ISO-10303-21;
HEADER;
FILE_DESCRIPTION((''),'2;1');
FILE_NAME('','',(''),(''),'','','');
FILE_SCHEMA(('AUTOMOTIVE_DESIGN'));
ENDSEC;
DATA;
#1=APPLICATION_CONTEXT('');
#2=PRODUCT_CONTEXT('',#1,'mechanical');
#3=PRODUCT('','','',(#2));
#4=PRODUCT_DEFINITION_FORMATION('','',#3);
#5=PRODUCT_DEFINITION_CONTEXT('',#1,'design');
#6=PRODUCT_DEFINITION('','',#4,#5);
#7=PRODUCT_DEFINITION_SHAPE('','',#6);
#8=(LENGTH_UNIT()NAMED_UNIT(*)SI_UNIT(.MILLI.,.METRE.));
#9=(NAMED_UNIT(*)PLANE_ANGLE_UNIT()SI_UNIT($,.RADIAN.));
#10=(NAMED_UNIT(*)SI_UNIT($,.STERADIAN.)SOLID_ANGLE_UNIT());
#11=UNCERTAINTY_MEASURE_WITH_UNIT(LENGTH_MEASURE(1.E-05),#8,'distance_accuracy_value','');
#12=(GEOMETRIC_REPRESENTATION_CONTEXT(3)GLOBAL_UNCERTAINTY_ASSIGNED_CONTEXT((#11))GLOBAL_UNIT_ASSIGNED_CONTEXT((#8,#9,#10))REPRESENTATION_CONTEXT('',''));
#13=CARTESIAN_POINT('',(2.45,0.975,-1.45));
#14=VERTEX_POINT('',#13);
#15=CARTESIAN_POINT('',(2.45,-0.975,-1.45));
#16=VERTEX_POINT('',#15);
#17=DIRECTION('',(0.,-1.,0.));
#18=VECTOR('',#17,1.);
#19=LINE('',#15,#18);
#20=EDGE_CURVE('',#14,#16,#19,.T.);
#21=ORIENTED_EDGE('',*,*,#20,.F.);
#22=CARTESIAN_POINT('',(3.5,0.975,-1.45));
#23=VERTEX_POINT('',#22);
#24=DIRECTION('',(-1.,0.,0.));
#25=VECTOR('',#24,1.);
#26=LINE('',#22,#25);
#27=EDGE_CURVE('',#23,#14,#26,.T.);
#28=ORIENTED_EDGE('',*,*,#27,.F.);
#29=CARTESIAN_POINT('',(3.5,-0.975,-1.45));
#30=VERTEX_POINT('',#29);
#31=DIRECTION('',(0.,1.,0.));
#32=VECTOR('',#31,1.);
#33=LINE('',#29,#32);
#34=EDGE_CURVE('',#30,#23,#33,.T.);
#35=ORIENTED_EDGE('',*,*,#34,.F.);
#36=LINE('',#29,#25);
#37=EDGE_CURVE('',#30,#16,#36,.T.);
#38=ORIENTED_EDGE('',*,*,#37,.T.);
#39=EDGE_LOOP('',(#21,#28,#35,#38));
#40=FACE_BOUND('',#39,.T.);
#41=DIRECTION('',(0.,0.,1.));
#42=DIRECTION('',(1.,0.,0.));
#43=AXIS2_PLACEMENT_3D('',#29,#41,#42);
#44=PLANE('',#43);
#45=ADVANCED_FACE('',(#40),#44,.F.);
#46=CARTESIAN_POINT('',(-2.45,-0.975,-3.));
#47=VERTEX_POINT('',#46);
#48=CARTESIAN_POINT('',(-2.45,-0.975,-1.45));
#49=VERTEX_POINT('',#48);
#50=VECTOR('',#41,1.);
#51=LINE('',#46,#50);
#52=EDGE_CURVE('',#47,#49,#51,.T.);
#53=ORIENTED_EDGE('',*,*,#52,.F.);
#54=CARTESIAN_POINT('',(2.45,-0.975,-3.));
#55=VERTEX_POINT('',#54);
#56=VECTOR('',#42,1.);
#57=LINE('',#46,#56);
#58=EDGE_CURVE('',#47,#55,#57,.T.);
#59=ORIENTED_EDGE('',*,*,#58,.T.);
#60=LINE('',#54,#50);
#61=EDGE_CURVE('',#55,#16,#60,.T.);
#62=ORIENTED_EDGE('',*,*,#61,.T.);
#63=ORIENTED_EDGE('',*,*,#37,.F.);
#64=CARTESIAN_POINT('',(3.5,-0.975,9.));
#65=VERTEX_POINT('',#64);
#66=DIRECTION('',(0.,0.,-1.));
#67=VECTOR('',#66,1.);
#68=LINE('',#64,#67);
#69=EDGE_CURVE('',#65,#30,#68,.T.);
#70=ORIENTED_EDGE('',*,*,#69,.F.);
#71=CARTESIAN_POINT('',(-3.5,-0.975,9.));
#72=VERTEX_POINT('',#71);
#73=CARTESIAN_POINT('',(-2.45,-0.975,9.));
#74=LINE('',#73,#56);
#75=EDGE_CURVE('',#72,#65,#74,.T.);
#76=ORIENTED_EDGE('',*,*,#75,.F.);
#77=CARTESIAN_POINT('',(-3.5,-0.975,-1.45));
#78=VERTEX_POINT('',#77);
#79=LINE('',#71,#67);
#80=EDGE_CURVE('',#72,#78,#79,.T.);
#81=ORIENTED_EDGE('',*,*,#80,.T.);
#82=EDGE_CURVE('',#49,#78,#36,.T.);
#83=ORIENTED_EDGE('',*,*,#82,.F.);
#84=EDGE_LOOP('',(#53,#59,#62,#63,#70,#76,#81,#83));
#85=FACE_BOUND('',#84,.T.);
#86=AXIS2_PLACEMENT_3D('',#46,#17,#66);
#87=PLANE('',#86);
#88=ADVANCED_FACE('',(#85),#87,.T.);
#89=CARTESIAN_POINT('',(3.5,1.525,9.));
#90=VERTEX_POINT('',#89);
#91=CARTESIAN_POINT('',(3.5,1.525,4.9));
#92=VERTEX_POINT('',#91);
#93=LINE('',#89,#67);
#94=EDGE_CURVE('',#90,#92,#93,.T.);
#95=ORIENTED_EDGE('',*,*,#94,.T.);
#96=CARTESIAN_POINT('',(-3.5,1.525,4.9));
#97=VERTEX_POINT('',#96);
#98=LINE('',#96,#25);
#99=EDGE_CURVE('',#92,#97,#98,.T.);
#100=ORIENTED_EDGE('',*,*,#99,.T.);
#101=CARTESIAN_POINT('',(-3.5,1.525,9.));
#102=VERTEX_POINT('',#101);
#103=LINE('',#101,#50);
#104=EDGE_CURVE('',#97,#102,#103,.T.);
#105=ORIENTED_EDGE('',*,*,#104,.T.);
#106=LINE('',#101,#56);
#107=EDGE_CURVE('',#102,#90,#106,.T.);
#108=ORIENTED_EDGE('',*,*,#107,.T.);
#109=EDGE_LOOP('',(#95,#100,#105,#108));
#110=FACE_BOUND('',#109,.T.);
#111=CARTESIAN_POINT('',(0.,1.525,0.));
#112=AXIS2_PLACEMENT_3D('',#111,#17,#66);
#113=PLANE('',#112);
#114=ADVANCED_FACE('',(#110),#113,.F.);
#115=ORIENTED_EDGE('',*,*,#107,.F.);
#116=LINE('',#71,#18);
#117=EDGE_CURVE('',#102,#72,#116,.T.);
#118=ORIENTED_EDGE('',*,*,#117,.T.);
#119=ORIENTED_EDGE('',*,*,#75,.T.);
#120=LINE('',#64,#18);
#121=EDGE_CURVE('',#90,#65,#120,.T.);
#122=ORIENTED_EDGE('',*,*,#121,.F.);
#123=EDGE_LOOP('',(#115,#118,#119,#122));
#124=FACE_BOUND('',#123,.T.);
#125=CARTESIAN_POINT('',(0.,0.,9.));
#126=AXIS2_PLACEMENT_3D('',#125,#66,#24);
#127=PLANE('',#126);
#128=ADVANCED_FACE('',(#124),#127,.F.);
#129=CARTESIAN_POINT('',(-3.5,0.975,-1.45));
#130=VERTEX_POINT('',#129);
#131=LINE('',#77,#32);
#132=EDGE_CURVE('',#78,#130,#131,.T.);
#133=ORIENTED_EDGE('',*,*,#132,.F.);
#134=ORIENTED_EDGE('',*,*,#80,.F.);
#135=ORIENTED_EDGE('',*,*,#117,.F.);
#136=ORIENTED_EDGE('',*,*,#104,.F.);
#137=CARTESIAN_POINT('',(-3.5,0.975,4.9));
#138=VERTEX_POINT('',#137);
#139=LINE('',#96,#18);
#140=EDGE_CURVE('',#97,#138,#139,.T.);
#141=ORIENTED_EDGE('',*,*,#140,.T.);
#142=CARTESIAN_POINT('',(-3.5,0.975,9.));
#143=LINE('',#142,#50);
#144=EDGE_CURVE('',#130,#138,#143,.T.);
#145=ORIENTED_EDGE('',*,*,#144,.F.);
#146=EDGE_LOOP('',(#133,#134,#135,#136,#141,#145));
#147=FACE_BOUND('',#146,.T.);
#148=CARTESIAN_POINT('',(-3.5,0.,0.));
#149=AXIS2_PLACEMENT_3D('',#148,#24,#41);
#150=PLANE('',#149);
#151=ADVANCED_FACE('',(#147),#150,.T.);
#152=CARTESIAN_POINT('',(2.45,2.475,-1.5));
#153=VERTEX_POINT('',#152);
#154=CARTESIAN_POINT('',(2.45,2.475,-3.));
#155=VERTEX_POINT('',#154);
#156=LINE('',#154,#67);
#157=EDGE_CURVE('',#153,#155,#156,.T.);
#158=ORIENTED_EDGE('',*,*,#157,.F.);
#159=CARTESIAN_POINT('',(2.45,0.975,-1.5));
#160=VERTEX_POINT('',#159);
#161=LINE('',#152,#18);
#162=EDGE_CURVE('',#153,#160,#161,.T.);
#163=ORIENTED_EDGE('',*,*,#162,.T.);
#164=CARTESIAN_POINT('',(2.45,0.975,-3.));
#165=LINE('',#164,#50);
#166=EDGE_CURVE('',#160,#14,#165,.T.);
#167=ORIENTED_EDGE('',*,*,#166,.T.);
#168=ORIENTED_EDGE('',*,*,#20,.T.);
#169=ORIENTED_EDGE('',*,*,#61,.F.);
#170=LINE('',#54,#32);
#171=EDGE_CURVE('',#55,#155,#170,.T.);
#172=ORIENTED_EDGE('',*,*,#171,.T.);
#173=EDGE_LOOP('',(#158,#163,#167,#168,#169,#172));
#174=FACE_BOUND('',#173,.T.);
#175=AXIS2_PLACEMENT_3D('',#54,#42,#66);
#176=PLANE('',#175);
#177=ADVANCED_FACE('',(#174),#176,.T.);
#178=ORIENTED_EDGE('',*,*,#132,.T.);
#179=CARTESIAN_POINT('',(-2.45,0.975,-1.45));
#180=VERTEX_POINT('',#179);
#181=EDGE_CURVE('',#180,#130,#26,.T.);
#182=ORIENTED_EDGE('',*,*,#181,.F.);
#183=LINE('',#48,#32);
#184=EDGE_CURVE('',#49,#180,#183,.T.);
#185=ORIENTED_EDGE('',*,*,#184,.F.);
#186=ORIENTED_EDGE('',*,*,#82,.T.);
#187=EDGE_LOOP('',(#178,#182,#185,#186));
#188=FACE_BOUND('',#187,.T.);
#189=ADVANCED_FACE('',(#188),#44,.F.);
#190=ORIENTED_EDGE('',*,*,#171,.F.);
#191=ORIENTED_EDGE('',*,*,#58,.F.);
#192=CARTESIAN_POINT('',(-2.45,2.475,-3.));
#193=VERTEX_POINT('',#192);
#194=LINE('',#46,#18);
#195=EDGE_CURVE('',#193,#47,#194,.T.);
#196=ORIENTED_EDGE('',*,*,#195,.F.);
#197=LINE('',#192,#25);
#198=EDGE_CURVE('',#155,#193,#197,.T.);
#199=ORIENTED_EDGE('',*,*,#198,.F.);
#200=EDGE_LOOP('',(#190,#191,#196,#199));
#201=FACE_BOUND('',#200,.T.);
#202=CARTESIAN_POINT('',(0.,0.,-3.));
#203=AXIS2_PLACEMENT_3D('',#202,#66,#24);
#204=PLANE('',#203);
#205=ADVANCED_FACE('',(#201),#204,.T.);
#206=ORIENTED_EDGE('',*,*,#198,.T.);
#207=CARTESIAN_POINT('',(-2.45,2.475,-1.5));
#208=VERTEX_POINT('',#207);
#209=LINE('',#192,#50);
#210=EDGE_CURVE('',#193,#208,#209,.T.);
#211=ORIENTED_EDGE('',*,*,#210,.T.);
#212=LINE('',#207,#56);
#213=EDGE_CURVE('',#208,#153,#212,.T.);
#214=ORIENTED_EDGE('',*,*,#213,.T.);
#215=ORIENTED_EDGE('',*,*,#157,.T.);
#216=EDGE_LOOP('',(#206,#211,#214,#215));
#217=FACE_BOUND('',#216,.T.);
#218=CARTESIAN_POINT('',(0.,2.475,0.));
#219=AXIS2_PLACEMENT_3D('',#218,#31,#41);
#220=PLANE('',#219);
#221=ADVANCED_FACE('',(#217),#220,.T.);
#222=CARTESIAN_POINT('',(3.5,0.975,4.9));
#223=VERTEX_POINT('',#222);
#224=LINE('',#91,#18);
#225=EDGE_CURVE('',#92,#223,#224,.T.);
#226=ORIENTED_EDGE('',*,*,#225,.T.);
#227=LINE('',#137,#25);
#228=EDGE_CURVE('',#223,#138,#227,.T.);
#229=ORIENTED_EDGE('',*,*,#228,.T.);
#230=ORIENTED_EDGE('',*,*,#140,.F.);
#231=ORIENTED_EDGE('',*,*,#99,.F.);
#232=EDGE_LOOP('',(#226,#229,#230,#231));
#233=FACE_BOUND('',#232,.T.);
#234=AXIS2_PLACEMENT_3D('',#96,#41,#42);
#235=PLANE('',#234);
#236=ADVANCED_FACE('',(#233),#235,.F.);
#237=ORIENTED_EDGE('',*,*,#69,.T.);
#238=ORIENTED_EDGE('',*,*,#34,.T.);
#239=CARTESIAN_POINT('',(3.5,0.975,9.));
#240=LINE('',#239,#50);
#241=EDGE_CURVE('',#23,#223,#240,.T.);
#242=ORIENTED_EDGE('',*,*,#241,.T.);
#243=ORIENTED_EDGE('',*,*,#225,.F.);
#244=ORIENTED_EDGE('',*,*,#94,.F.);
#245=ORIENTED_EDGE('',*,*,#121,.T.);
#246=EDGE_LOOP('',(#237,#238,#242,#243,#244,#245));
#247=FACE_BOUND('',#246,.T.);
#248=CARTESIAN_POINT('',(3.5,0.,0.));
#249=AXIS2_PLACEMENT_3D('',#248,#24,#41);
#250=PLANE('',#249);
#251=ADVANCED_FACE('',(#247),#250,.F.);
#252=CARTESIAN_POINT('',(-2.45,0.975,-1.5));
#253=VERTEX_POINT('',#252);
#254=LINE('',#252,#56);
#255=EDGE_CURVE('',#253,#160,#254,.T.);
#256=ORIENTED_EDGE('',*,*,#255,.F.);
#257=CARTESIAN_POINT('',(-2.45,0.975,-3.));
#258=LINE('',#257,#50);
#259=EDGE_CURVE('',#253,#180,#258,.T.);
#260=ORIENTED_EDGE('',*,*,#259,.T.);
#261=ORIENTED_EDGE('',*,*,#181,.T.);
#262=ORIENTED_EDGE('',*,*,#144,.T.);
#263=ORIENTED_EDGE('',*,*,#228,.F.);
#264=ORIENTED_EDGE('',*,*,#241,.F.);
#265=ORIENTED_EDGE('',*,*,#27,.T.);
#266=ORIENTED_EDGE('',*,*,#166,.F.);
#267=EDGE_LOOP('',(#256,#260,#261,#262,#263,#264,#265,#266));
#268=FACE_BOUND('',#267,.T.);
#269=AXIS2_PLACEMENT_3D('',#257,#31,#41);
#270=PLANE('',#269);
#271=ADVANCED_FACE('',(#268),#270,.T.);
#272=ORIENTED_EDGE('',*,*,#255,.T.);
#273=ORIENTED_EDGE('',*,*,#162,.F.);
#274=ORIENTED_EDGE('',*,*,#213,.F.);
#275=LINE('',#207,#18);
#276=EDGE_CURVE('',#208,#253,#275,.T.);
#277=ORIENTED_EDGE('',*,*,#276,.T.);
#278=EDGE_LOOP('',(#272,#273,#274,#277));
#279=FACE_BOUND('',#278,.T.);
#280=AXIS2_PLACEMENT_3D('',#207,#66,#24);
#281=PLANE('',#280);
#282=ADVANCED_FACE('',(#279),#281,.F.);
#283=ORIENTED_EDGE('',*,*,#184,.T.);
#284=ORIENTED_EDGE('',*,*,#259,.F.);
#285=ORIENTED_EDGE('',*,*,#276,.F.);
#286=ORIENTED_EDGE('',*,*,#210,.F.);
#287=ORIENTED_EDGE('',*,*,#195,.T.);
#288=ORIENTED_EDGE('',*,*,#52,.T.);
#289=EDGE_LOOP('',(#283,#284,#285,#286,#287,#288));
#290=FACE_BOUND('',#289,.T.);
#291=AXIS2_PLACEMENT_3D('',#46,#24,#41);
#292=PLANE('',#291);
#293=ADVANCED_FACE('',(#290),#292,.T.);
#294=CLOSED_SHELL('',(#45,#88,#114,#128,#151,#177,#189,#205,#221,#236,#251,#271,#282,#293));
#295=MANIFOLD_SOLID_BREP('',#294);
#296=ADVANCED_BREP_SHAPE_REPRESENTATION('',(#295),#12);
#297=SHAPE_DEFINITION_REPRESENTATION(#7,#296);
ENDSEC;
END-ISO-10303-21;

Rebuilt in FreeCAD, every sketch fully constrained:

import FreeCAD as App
import Part
import Sketcher

V = App.Vector

doc = App.newDocument("Part")
body = doc.addObject("PartDesign::Body", "Body")

sketch1 = doc.addObject("Sketcher::SketchObject", "Sketch")
body.addObject(sketch1)
sketch1.AttachmentSupport = (doc.XY_Plane, [""])
sketch1.MapMode = "FlatFace"
sketch1.addGeometry(Part.LineSegment(V(-2.5, 1, 0), V(-2.5, -1, 0)), False)
sketch1.addGeometry(Part.LineSegment(V(-2.5, -1, 0), V(2.5, -1, 0)), False)
sketch1.addGeometry(Part.LineSegment(V(2.5, -1, 0), V(2.5, 1, 0)), False)
sketch1.addGeometry(Part.LineSegment(V(2.5, 1, 0), V(-2.5, 1, 0)), False)
sketch1.addConstraint(Sketcher.Constraint("Coincident", 0, 2, 1, 1))
sketch1.addConstraint(Sketcher.Constraint("Coincident", 1, 2, 2, 1))
sketch1.addConstraint(Sketcher.Constraint("Coincident", 2, 2, 3, 1))
sketch1.addConstraint(Sketcher.Constraint("Coincident", 3, 2, 0, 1))
sketch1.addConstraint(Sketcher.Constraint("Vertical", 0))
sketch1.addConstraint(Sketcher.Constraint("Horizontal", 1))
sketch1.addConstraint(Sketcher.Constraint("Vertical", 2))
sketch1.addConstraint(Sketcher.Constraint("Horizontal", 3))
sketch1.addConstraint(Sketcher.Constraint("Symmetric", 0, 2, 2, 2, -1, 1))
sketch1.addConstraint(Sketcher.Constraint("DistanceX", 1, 1, 1, 2, 4.9))
sketch1.addConstraint(Sketcher.Constraint("DistanceY", 0, 2, 0, 1, 1.95))
pad1 = doc.addObject("PartDesign::Pad", "Pad")
body.addObject(pad1)
pad1.Profile = sketch1
pad1.Type = "TwoLengths"
pad1.Length = 9
pad1.Length2 = 3

sketch2 = doc.addObject("Sketcher::SketchObject", "Sketch001")
body.addObject(sketch2)
sketch2.AttachmentSupport = (doc.XZ_Plane, [""])
sketch2.MapMode = "FlatFace"
sketch2.AttachmentOffset = App.Placement(V(0, 0, -0.975), App.Rotation())
sketch2.addGeometry(Part.LineSegment(V(-2.5, -3, 0), V(-2.5, -1.5, 0)), False)
sketch2.addGeometry(Part.LineSegment(V(-2.5, -1.5, 0), V(2.5, -1.5, 0)), False)
sketch2.addGeometry(Part.LineSegment(V(2.5, -1.5, 0), V(2.5, -3, 0)), False)
sketch2.addGeometry(Part.LineSegment(V(2.5, -3, 0), V(-2.5, -3, 0)), False)
sketch2.addConstraint(Sketcher.Constraint("Coincident", 0, 2, 1, 1))
sketch2.addConstraint(Sketcher.Constraint("Coincident", 1, 2, 2, 1))
sketch2.addConstraint(Sketcher.Constraint("Coincident", 2, 2, 3, 1))
sketch2.addConstraint(Sketcher.Constraint("Coincident", 3, 2, 0, 1))
sketch2.addConstraint(Sketcher.Constraint("Vertical", 0))
sketch2.addConstraint(Sketcher.Constraint("Horizontal", 1))
sketch2.addConstraint(Sketcher.Constraint("Vertical", 2))
sketch2.addConstraint(Sketcher.Constraint("Horizontal", 3))
sketch2.addConstraint(Sketcher.Constraint("DistanceX", 1, 1, 1, 2, 4.9))
sketch2.addConstraint(Sketcher.Constraint("DistanceY", 0, 1, 0, 2, 1.5))
sketch2.addConstraint(Sketcher.Constraint("DistanceY", 2, 2, -1, 1, 3.0))
sketch2.addConstraint(Sketcher.Constraint("DistanceX", 0, 2, -1, 1, 2.45))
pad2 = doc.addObject("PartDesign::Pad", "Pad001")
body.addObject(pad2)
pad2.Profile = sketch2
pad2.Length = 1.5
pad2.Reversed = True

sketch3 = doc.addObject("Sketcher::SketchObject", "Sketch002")
body.addObject(sketch3)
sketch3.AttachmentSupport = (doc.YZ_Plane, [""])
sketch3.MapMode = "FlatFace"
sketch3.addGeometry(Part.LineSegment(V(1, 9, 0), V(-1, 9, 0)), False)
sketch3.addGeometry(Part.LineSegment(V(-1, 9, 0), V(-1, -1.4, 0)), False)
sketch3.addGeometry(Part.LineSegment(V(-1, -1.4, 0), V(1, -1.4, 0)), False)
sketch3.addGeometry(Part.LineSegment(V(1, -1.4, 0), V(1, 9, 0)), False)
sketch3.addConstraint(Sketcher.Constraint("Coincident", 0, 2, 1, 1))
sketch3.addConstraint(Sketcher.Constraint("Coincident", 1, 2, 2, 1))
sketch3.addConstraint(Sketcher.Constraint("Coincident", 2, 2, 3, 1))
sketch3.addConstraint(Sketcher.Constraint("Coincident", 3, 2, 0, 1))
sketch3.addConstraint(Sketcher.Constraint("Horizontal", 0))
sketch3.addConstraint(Sketcher.Constraint("Vertical", 1))
sketch3.addConstraint(Sketcher.Constraint("Horizontal", 2))
sketch3.addConstraint(Sketcher.Constraint("Vertical", 3))
sketch3.addConstraint(Sketcher.Constraint("DistanceY", -1, 1, 0, 2, 9.0))
sketch3.addConstraint(Sketcher.Constraint("DistanceX", 0, 2, 0, 1, 1.95))
sketch3.addConstraint(Sketcher.Constraint("DistanceY", 1, 2, 1, 1, 10.45))
sketch3.addConstraint(Sketcher.Constraint("DistanceX", 0, 2, -1, 1, 0.975))
pad3 = doc.addObject("PartDesign::Pad", "Pad002")
body.addObject(pad3)
pad3.Profile = sketch3
pad3.Length = 7
pad3.Midplane = True

sketch4 = doc.addObject("Sketcher::SketchObject", "Sketch003")
body.addObject(sketch4)
sketch4.AttachmentSupport = (doc.XZ_Plane, [""])
sketch4.MapMode = "FlatFace"
sketch4.AttachmentOffset = App.Placement(V(0, 0, -0.975), App.Rotation())
sketch4.addGeometry(Part.LineSegment(V(-3.5, 4.9, 0), V(-3.5, 9, 0)), False)
sketch4.addGeometry(Part.LineSegment(V(-3.5, 9, 0), V(3.5, 9, 0)), False)
sketch4.addGeometry(Part.LineSegment(V(3.5, 9, 0), V(3.5, 4.9, 0)), False)
sketch4.addGeometry(Part.LineSegment(V(3.5, 4.9, 0), V(-3.5, 4.9, 0)), False)
sketch4.addConstraint(Sketcher.Constraint("Coincident", 0, 2, 1, 1))
sketch4.addConstraint(Sketcher.Constraint("Coincident", 1, 2, 2, 1))
sketch4.addConstraint(Sketcher.Constraint("Coincident", 2, 2, 3, 1))
sketch4.addConstraint(Sketcher.Constraint("Coincident", 3, 2, 0, 1))
sketch4.addConstraint(Sketcher.Constraint("Vertical", 0))
sketch4.addConstraint(Sketcher.Constraint("Horizontal", 1))
sketch4.addConstraint(Sketcher.Constraint("Vertical", 2))
sketch4.addConstraint(Sketcher.Constraint("Horizontal", 3))
sketch4.addConstraint(Sketcher.Constraint("DistanceX", 1, 1, 1, 2, 7.0))
sketch4.addConstraint(Sketcher.Constraint("DistanceY", 0, 1, 0, 2, 4.1))
sketch4.addConstraint(Sketcher.Constraint("DistanceY", -1, 1, 0, 2, 9.0))
sketch4.addConstraint(Sketcher.Constraint("DistanceX", 0, 2, -1, 1, 3.5))
pad4 = doc.addObject("PartDesign::Pad", "Pad003")
body.addObject(pad4)
pad4.Profile = sketch4
pad4.Length = 0.55
pad4.Reversed = True

doc.recompute()
